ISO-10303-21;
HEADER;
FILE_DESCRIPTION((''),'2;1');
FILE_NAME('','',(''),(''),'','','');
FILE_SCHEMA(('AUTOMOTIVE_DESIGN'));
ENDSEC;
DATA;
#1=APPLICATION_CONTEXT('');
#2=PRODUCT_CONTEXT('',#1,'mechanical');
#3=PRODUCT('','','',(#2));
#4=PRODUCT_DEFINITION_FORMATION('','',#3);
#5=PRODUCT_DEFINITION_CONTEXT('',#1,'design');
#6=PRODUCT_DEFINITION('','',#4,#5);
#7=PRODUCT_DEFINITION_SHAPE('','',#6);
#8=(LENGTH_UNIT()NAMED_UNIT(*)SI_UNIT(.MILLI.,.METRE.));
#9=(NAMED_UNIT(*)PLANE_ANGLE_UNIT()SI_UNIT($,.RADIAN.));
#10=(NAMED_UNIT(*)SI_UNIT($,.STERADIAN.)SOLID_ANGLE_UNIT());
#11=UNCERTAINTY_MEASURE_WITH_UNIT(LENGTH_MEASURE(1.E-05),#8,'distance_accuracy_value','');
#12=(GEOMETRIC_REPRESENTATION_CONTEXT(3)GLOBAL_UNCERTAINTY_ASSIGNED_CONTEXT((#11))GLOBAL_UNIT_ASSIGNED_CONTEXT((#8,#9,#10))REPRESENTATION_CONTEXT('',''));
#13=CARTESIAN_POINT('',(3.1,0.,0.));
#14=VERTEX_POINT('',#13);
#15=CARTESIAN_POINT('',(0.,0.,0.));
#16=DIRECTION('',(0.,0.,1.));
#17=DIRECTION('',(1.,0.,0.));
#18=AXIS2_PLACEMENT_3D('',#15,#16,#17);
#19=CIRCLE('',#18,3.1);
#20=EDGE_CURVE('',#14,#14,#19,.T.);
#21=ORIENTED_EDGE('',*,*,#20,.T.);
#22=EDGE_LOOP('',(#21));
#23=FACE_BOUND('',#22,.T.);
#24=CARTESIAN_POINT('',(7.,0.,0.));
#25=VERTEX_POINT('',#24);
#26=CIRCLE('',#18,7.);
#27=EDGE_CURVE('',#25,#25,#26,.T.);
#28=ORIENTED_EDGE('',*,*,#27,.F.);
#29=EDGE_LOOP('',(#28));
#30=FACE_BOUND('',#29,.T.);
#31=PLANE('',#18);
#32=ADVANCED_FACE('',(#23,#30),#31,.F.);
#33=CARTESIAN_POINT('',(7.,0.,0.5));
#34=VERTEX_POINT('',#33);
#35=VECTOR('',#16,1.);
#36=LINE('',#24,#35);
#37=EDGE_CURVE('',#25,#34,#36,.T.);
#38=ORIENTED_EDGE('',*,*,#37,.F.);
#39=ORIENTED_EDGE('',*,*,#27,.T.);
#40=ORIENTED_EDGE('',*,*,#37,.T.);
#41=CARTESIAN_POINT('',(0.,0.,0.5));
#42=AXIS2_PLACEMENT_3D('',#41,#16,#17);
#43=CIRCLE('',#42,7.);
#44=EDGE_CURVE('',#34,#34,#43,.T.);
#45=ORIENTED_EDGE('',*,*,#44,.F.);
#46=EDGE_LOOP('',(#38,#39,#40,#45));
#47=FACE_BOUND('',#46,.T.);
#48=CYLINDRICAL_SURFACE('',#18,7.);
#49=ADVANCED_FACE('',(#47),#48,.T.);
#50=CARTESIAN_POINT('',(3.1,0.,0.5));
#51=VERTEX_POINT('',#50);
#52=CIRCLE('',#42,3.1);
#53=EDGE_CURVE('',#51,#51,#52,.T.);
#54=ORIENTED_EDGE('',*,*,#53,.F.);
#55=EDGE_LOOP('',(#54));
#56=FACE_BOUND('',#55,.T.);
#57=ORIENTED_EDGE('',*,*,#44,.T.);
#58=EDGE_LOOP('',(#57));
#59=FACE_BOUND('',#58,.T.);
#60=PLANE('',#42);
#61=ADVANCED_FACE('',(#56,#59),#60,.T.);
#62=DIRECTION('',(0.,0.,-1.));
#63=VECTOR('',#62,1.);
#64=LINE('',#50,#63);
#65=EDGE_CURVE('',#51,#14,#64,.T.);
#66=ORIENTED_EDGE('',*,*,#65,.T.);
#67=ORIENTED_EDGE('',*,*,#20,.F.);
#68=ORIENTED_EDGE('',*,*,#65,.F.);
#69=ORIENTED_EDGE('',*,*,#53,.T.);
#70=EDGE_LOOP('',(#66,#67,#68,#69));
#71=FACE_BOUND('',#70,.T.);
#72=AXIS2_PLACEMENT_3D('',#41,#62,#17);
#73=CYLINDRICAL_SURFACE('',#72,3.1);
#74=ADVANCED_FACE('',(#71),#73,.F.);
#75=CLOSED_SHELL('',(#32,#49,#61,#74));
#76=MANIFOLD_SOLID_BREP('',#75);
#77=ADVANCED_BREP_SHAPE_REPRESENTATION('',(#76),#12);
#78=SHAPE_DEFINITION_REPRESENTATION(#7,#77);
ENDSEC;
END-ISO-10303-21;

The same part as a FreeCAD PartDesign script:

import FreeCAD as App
import Part
import Sketcher
Q = App.Units.Quantity


def add_polygon(sketch, points):
    """Adds a closed chain of lines whose ends are joined by coincident constraints."""
    first, n = sketch.GeometryCount, len(points)
    for a, b in zip(points, points[1:] + points[:1]):
        sketch.addGeometry(Part.LineSegment(App.Vector(*a, 0), App.Vector(*b, 0)), False)
    for i in range(n):
        sketch.addConstraint(Sketcher.Constraint("Coincident", first + i, 2, first + (i + 1) % n, 1))

doc = App.newDocument("Part")
body = doc.addObject("PartDesign::Body", "Body")

sketch1 = doc.addObject("Sketcher::SketchObject", "Sketch")
body.addObject(sketch1)
sketch1.AttachmentSupport = (doc.XZ_Plane, [""])
sketch1.MapMode = "FlatFace"
add_polygon(sketch1, [(3.1, 0), (3.1, 0.5), (7, 0.5), (7, 0)])
sketch1.addConstraint([
    Sketcher.Constraint("Vertical", 0),
    Sketcher.Constraint("Horizontal", 1),
    Sketcher.Constraint("Vertical", 2),
    Sketcher.Constraint("Horizontal", 3),
    Sketcher.Constraint("PointOnObject", 2, 2, -1),
    Sketcher.Constraint("DistanceY", 0, 1, 0, 2, Q("0.5 mm")),
    Sketcher.Constraint("DistanceX", 1, 1, 1, 2, Q("3.9 mm")),
    Sketcher.Constraint("DistanceX", -1, 1, 1, 2, Q("7 mm")),
])
revolution = doc.addObject("PartDesign::Revolution", "Revolution")
body.addObject(revolution)
revolution.Profile = sketch1
revolution.ReferenceAxis = (sketch1, ["V_Axis"])
revolution.Angle = 360

doc.recompute()
